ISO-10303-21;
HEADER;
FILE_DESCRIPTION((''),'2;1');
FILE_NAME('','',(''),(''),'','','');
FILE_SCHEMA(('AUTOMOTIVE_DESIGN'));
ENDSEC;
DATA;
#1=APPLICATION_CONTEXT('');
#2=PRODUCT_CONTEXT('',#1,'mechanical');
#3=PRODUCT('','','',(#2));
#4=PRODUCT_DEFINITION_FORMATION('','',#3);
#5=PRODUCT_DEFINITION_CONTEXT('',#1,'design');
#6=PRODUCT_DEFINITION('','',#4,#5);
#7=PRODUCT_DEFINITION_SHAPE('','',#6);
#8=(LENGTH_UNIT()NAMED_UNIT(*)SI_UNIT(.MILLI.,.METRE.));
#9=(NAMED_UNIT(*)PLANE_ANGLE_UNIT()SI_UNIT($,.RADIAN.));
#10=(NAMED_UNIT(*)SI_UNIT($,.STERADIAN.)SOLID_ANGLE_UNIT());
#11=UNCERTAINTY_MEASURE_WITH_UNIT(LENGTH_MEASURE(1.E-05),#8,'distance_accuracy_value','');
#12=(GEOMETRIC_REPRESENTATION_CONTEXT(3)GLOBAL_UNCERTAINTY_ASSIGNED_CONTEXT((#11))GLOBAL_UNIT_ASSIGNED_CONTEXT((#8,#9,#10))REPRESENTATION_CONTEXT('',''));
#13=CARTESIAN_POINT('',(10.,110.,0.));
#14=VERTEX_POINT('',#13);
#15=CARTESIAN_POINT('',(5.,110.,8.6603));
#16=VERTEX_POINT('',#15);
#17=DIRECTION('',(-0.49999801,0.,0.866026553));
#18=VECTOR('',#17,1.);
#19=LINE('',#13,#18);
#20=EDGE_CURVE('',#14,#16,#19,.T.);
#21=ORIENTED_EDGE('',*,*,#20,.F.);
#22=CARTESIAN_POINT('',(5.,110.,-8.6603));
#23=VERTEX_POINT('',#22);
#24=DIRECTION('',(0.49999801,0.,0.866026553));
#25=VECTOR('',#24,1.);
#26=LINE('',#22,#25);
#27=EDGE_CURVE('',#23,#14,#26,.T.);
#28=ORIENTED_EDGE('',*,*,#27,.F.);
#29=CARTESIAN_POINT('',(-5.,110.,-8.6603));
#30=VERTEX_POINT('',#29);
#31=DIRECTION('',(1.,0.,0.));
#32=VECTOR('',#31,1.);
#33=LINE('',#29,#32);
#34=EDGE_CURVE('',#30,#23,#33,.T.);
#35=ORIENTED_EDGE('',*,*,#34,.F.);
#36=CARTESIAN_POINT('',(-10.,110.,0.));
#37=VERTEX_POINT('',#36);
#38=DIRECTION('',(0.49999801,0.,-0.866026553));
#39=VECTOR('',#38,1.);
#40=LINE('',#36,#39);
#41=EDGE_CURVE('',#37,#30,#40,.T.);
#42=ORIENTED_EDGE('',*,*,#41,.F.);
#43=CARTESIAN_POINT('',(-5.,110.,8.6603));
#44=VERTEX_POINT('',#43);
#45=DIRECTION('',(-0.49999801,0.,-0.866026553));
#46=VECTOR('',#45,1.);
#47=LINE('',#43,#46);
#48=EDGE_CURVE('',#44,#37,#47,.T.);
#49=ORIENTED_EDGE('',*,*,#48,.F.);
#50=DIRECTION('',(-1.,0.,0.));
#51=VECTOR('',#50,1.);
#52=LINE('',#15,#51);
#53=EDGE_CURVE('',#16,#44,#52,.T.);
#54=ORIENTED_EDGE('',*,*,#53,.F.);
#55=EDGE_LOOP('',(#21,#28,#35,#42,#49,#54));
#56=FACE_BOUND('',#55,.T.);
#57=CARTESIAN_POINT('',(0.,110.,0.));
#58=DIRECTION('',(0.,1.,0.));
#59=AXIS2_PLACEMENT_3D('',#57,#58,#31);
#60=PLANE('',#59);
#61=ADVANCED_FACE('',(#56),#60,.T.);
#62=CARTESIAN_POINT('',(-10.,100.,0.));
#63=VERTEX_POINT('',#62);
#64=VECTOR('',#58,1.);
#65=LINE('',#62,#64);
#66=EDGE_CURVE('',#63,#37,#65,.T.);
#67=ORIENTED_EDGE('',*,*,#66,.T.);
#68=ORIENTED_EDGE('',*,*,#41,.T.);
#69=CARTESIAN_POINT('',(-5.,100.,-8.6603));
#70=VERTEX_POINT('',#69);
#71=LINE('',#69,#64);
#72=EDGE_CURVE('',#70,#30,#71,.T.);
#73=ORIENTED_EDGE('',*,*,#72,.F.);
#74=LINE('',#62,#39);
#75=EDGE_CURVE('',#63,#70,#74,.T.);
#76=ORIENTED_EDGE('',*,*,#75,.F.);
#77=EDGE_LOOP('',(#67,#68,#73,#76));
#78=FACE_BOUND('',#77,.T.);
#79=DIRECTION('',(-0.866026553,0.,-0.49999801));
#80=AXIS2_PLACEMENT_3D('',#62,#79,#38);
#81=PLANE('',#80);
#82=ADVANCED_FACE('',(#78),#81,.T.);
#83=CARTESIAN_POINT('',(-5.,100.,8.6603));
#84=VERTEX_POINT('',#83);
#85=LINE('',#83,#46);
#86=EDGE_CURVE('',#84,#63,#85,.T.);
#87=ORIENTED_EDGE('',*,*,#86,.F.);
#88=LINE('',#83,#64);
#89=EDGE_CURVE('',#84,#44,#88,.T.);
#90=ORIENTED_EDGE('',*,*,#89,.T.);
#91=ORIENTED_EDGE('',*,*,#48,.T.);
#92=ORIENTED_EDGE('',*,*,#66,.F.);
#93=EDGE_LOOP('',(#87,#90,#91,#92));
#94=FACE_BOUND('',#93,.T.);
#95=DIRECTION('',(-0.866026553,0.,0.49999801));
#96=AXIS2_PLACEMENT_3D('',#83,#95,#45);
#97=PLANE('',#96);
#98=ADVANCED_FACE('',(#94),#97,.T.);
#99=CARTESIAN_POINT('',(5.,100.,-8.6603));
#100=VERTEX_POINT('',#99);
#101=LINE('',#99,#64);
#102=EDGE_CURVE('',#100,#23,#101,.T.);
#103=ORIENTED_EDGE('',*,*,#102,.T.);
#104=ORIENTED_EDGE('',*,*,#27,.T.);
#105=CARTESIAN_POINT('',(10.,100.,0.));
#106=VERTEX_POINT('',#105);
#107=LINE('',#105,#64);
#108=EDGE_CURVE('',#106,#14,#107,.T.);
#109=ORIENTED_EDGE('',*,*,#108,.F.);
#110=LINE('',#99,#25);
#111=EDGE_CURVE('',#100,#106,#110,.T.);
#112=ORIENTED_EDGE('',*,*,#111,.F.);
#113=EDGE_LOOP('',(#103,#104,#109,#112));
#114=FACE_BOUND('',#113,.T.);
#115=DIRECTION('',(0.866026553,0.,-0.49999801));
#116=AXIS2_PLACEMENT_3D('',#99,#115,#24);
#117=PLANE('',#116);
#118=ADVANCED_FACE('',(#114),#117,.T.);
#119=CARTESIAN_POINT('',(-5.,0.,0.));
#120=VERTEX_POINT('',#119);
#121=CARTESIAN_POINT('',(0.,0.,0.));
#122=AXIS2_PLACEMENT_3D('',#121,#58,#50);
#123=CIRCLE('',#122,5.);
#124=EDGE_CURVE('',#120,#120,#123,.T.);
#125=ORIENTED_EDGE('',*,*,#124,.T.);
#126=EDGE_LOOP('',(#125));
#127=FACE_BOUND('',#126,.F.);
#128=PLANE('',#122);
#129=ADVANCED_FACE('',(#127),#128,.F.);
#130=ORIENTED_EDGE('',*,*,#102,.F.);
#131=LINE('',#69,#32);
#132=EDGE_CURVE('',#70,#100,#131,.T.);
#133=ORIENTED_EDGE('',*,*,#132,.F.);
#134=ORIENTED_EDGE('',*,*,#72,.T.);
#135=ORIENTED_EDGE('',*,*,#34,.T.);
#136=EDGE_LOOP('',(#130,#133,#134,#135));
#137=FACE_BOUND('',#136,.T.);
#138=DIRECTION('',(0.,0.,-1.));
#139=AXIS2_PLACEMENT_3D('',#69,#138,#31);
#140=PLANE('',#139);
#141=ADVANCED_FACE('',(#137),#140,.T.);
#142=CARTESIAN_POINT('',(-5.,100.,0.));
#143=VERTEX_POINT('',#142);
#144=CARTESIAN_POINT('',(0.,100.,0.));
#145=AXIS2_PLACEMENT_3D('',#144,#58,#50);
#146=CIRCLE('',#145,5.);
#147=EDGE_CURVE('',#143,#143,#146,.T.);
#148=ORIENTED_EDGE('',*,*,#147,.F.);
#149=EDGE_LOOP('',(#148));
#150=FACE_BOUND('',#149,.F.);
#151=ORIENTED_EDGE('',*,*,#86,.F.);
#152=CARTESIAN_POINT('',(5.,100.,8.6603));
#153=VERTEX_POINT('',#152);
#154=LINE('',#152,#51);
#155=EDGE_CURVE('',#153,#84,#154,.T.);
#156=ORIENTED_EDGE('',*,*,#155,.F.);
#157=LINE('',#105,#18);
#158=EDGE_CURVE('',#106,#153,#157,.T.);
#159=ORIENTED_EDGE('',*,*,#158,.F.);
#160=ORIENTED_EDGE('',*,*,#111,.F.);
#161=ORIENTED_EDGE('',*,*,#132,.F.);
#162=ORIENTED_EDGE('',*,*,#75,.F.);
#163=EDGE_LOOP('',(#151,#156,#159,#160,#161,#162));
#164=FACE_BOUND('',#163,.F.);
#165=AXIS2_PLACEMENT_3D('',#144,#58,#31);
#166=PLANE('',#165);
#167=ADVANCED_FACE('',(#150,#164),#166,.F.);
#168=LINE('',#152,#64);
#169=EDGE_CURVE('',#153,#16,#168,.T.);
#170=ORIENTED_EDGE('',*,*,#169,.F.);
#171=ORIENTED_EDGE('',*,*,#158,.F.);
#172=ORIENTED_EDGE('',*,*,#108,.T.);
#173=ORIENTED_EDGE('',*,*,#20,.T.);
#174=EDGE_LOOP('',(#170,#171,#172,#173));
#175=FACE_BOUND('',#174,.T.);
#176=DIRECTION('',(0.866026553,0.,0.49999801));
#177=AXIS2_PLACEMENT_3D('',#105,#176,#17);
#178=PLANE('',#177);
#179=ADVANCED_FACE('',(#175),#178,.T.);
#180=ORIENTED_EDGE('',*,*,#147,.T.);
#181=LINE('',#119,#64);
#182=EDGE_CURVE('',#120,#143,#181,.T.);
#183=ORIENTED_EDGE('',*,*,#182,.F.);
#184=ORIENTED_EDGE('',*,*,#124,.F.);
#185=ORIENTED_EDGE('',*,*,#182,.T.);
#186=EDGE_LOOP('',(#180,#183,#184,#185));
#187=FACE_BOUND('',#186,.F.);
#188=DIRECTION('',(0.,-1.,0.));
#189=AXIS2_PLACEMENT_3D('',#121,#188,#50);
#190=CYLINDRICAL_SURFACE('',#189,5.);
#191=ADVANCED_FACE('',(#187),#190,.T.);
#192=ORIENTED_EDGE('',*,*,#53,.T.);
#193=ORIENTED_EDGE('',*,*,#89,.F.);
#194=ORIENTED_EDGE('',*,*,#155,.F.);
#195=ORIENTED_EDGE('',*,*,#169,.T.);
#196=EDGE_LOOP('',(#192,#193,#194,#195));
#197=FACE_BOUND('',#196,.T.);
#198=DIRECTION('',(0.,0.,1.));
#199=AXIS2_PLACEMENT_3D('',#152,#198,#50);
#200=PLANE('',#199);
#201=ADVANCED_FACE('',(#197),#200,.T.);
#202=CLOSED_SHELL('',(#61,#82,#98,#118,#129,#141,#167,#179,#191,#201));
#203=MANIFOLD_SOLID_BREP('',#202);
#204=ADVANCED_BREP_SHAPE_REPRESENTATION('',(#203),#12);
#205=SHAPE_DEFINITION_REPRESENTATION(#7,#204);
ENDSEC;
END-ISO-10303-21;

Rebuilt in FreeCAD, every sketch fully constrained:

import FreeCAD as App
import Part
import Sketcher

V = App.Vector
Q = App.Units.Quantity

doc = App.newDocument("Part")
body = doc.addObject("PartDesign::Body", "Body")

sketch1 = body.newObject("Sketcher::SketchObject", "Sketch")
sketch1.AttachmentSupport = (doc.getObject("XZ_Plane"), [""])
sketch1.MapMode = "FlatFace"
sketch1.addGeometry(Part.Circle(V(0, 0, 0), V(0, 0, 1), 5), False)
sketch1.addConstraint([
    Sketcher.Constraint("Coincident", 0, 3, -1, 1),
    Sketcher.Constraint("Diameter", 0, Q("0.3937 in")),
])
pad1 = body.newObject("PartDesign::Pad", "Pad")
pad1.Profile = sketch1
pad1.Length = Q("3.9370079 in")
pad1.Reversed = True

sketch2 = body.newObject("Sketcher::SketchObject", "Sketch001")
sketch2.AttachmentSupport = (doc.getObject("XZ_Plane"), [""])
sketch2.MapMode = "FlatFace"
sketch2.AttachmentOffset = App.Placement(V(0, 0, -3.9370079 * 25.4), App.Rotation())
sketch2.addGeometry([
    Part.LineSegment(V(-5, -8.6603, 0), V(-10, 0, 0)),
    Part.LineSegment(V(-10, 0, 0), V(-5, 8.6603, 0)),
    Part.LineSegment(V(-5, 8.6603, 0), V(5, 8.6603, 0)),
    Part.LineSegment(V(5, 8.6603, 0), V(10, 0, 0)),
    Part.LineSegment(V(10, 0, 0), V(5, -8.6603, 0)),
    Part.LineSegment(V(5, -8.6603, 0), V(-5, -8.6603, 0)),
], False)
sketch2.addConstraint([
    Sketcher.Constraint("Coincident", 0, 2, 1, 1),
    Sketcher.Constraint("Coincident", 1, 2, 2, 1),
    Sketcher.Constraint("Coincident", 2, 2, 3, 1),
    Sketcher.Constraint("Coincident", 3, 2, 4, 1),
    Sketcher.Constraint("Coincident", 4, 2, 5, 1),
    Sketcher.Constraint("Coincident", 5, 2, 0, 1),
    Sketcher.Constraint("Horizontal", 2),
    Sketcher.Constraint("Horizontal", 5),
    Sketcher.Constraint("Symmetric", 0, 2, 3, 2, -1, 1),
    Sketcher.Constraint("Symmetric", 1, 2, 4, 2, -1, 1),
    Sketcher.Constraint("PointOnObject", 0, 2, -1),
    Sketcher.Constraint("Parallel", 0, 3),
    Sketcher.Constraint("Vertical", 2, 2, 4, 2),
    Sketcher.Constraint("Angle", 0, Q("119.9999 deg")),
    Sketcher.Constraint("DistanceX", 0, 2, 3, 2, Q("0.7874 in")),
    Sketcher.Constraint("DistanceX", 2, 1, 2, 2, Q("0.3937 in")),
])
pad2 = body.newObject("PartDesign::Pad", "Pad001")
pad2.Profile = sketch2
pad2.Length = Q("0.3937008 in")
pad2.Reversed = True

doc.recompute()
